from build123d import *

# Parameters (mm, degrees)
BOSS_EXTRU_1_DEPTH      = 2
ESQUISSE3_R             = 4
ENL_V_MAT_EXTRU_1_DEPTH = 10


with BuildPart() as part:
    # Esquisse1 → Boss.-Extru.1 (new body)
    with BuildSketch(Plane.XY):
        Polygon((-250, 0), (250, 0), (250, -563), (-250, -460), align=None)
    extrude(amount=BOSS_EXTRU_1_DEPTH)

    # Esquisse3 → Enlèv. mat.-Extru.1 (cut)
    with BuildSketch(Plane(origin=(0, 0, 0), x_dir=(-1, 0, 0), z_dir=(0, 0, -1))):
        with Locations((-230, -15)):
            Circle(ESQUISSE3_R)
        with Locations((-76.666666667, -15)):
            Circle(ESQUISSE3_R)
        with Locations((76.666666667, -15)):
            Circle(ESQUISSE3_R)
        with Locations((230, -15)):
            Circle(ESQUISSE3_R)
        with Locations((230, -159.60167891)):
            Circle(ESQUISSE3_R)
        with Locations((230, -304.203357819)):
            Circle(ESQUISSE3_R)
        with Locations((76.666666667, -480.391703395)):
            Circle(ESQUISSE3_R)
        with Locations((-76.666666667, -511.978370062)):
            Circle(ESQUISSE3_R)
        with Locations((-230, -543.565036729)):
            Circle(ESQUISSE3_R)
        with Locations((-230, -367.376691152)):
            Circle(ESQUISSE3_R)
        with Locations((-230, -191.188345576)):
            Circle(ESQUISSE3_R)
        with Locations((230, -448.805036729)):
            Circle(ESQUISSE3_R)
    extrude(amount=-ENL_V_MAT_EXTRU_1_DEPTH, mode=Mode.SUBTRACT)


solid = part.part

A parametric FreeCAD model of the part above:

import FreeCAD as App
import Part
import Sketcher
from FreeCAD import Vector
Q = App.Units.Quantity


def add_polygon(sketch, points):
    """Adds a closed chain of lines whose ends are joined by coincident constraints."""
    first, n = sketch.GeometryCount, len(points)
    for a, b in zip(points, points[1:] + points[:1]):
        sketch.addGeometry(Part.LineSegment(App.Vector(*a, 0), App.Vector(*b, 0)), False)
    for i in range(n):
        sketch.addConstraint(Sketcher.Constraint("Coincident", first + i, 2, first + (i + 1) % n, 1))

doc = App.newDocument("Part")
body = doc.addObject("PartDesign::Body", "Body")

sketch1 = body.newObject("Sketcher::SketchObject", "Sketch")
sketch1.AttachmentSupport = (doc.getObject("XY_Plane"), [""])
sketch1.MapMode = "FlatFace"
add_polygon(sketch1, [(250, 0), (-250, 0), (-250, -460), (250, -563)])
sketch1.addConstraint(Sketcher.Constraint("Horizontal", 0))
sketch1.addConstraint(Sketcher.Constraint("Vertical", 1))
sketch1.addConstraint(Sketcher.Constraint("Vertical", 3))
sketch1.addConstraint(Sketcher.Constraint("Symmetric", 0, 2, 3, 2, -1, 1))
sketch1.addConstraint(Sketcher.Constraint("DistanceX", 0, 2, 0, 1, Q("500 mm")))
sketch1.addConstraint(Sketcher.Constraint("DistanceY", 1, 2, 1, 1, Q("460 mm")))
sketch1.addConstraint(Sketcher.Constraint("DistanceY", 3, 1, 3, 2, Q("563 mm")))
pad1 = body.newObject("PartDesign::Pad", "Pad")
pad1.Profile = sketch1
pad1.Length = 2

sketch2 = body.newObject("Sketcher::SketchObject", "Sketch001")
sketch2.AttachmentSupport = (doc.getObject("XY_Plane"), [""])
sketch2.MapMode = "FlatFace"
sketch2.addGeometry(Part.Circle(Vector(230, -15, 0), Vector(0, 0, 1), 4), False)
sketch2.addGeometry(Part.Circle(Vector(76.666667, -15, 0), Vector(0, 0, 1), 4), False)
sketch2.addGeometry(Part.Circle(Vector(-76.666667, -15, 0), Vector(0, 0, 1), 4), False)
sketch2.addGeometry(Part.Circle(Vector(-230, -15, 0), Vector(0, 0, 1), 4), False)
sketch2.addGeometry(Part.Circle(Vector(-230, -159.601679, 0), Vector(0, 0, 1), 4), False)
sketch2.addGeometry(Part.Circle(Vector(-230, -304.203358, 0), Vector(0, 0, 1), 4), False)
sketch2.addGeometry(Part.Circle(Vector(-76.666667, -480.391703, 0), Vector(0, 0, 1), 4), False)
sketch2.addGeometry(Part.Circle(Vector(76.666667, -511.97837, 0), Vector(0, 0, 1), 4), False)
sketch2.addGeometry(Part.Circle(Vector(230, -543.565037, 0), Vector(0, 0, 1), 4), False)
sketch2.addGeometry(Part.Circle(Vector(230, -367.376691, 0), Vector(0, 0, 1), 4), False)
sketch2.addGeometry(Part.Circle(Vector(230, -191.188346, 0), Vector(0, 0, 1), 4), False)
sketch2.addGeometry(Part.Circle(Vector(-230, -448.805037, 0), Vector(0, 0, 1), 4), False)
sketch2.addConstraint(Sketcher.Constraint("Equal", 0, 1))
sketch2.addConstraint(Sketcher.Constraint("Equal", 1, 2))
sketch2.addConstraint(Sketcher.Constraint("Equal", 2, 3))
sketch2.addConstraint(Sketcher.Constraint("Equal", 3, 4))
sketch2.addConstraint(Sketcher.Constraint("Equal", 4, 5))
sketch2.addConstraint(Sketcher.Constraint("Equal", 5, 6))
sketch2.addConstraint(Sketcher.Constraint("Equal", 6, 7))
sketch2.addConstraint(Sketcher.Constraint("Equal", 7, 8))
sketch2.addConstraint(Sketcher.Constraint("Equal", 8, 9))
sketch2.addConstraint(Sketcher.Constraint("Equal", 9, 10))
sketch2.addConstraint(Sketcher.Constraint("Equal", 10, 11))
sketch2.addConstraint(Sketcher.Constraint("Symmetric", 1, 3, 2, 3, -2))
sketch2.addConstraint(Sketcher.Constraint("Symmetric", 0, 3, 3, 3, -2))
sketch2.addConstraint(Sketcher.Constraint("Horizontal", 0, 3, 1, 3))
sketch2.addConstraint(Sketcher.Constraint("Vertical", 3, 3, 4, 3))
sketch2.addConstraint(Sketcher.Constraint("Vertical", 4, 3, 5, 3))
sketch2.addConstraint(Sketcher.Constraint("Vertical", 2, 3, 6, 3))
sketch2.addConstraint(Sketcher.Constraint("Vertical", 1, 3, 7, 3))
sketch2.addConstraint(Sketcher.Constraint("Vertical", 0, 3, 8, 3))
sketch2.addConstraint(Sketcher.Constraint("Vertical", 8, 3, 9, 3))
sketch2.addConstraint(Sketcher.Constraint("Vertical", 9, 3, 10, 3))
sketch2.addConstraint(Sketcher.Constraint("Vertical", 5, 3, 11, 3))
sketch2.addConstraint(Sketcher.Constraint("Diameter", 0, Q("8 mm")))
sketch2.addConstraint(Sketcher.Constraint("DistanceX", -1, 1, 0, 3, Q("230 mm")))
sketch2.addConstraint(Sketcher.Constraint("DistanceY", 0, 3, -1, 1, Q("15 mm")))
sketch2.addConstraint(Sketcher.Constraint("DistanceY", 4, 3, -1, 1, Q("159.601679 mm")))
sketch2.addConstraint(Sketcher.Constraint("DistanceY", 7, 3, -1, 1, Q("511.97837 mm")))
sketch2.addConstraint(Sketcher.Constraint("DistanceY", 9, 3, -1, 1, Q("367.376691 mm")))
sketch2.addConstraint(Sketcher.Constraint("DistanceY", 5, 3, 4, 3, Q("144.601679 mm")))
sketch2.addConstraint(Sketcher.Constraint("DistanceY", 8, 3, 5, 3, Q("239.361679 mm")))
sketch2.addConstraint(Sketcher.Constraint("DistanceY", 8, 3, 10, 3, Q("352.376691 mm")))
sketch2.addConstraint(Sketcher.Constraint("DistanceY", 11, 3, 5, 3, Q("144.601679 mm")))
sketch2.addConstraint(Sketcher.Constraint("DistanceX", -1, 1, 1, 3, Q("76.666667 mm")))
sketch2.addConstraint(Sketcher.Constraint("DistanceY", 6, 3, -1, 1, Q("480.391703 mm")))
pocket1 = body.newObject("PartDesign::Pocket", "Pocket")
pocket1.Profile = sketch2
pocket1.Length = 10
pocket1.Reversed = True

doc.recompute()
